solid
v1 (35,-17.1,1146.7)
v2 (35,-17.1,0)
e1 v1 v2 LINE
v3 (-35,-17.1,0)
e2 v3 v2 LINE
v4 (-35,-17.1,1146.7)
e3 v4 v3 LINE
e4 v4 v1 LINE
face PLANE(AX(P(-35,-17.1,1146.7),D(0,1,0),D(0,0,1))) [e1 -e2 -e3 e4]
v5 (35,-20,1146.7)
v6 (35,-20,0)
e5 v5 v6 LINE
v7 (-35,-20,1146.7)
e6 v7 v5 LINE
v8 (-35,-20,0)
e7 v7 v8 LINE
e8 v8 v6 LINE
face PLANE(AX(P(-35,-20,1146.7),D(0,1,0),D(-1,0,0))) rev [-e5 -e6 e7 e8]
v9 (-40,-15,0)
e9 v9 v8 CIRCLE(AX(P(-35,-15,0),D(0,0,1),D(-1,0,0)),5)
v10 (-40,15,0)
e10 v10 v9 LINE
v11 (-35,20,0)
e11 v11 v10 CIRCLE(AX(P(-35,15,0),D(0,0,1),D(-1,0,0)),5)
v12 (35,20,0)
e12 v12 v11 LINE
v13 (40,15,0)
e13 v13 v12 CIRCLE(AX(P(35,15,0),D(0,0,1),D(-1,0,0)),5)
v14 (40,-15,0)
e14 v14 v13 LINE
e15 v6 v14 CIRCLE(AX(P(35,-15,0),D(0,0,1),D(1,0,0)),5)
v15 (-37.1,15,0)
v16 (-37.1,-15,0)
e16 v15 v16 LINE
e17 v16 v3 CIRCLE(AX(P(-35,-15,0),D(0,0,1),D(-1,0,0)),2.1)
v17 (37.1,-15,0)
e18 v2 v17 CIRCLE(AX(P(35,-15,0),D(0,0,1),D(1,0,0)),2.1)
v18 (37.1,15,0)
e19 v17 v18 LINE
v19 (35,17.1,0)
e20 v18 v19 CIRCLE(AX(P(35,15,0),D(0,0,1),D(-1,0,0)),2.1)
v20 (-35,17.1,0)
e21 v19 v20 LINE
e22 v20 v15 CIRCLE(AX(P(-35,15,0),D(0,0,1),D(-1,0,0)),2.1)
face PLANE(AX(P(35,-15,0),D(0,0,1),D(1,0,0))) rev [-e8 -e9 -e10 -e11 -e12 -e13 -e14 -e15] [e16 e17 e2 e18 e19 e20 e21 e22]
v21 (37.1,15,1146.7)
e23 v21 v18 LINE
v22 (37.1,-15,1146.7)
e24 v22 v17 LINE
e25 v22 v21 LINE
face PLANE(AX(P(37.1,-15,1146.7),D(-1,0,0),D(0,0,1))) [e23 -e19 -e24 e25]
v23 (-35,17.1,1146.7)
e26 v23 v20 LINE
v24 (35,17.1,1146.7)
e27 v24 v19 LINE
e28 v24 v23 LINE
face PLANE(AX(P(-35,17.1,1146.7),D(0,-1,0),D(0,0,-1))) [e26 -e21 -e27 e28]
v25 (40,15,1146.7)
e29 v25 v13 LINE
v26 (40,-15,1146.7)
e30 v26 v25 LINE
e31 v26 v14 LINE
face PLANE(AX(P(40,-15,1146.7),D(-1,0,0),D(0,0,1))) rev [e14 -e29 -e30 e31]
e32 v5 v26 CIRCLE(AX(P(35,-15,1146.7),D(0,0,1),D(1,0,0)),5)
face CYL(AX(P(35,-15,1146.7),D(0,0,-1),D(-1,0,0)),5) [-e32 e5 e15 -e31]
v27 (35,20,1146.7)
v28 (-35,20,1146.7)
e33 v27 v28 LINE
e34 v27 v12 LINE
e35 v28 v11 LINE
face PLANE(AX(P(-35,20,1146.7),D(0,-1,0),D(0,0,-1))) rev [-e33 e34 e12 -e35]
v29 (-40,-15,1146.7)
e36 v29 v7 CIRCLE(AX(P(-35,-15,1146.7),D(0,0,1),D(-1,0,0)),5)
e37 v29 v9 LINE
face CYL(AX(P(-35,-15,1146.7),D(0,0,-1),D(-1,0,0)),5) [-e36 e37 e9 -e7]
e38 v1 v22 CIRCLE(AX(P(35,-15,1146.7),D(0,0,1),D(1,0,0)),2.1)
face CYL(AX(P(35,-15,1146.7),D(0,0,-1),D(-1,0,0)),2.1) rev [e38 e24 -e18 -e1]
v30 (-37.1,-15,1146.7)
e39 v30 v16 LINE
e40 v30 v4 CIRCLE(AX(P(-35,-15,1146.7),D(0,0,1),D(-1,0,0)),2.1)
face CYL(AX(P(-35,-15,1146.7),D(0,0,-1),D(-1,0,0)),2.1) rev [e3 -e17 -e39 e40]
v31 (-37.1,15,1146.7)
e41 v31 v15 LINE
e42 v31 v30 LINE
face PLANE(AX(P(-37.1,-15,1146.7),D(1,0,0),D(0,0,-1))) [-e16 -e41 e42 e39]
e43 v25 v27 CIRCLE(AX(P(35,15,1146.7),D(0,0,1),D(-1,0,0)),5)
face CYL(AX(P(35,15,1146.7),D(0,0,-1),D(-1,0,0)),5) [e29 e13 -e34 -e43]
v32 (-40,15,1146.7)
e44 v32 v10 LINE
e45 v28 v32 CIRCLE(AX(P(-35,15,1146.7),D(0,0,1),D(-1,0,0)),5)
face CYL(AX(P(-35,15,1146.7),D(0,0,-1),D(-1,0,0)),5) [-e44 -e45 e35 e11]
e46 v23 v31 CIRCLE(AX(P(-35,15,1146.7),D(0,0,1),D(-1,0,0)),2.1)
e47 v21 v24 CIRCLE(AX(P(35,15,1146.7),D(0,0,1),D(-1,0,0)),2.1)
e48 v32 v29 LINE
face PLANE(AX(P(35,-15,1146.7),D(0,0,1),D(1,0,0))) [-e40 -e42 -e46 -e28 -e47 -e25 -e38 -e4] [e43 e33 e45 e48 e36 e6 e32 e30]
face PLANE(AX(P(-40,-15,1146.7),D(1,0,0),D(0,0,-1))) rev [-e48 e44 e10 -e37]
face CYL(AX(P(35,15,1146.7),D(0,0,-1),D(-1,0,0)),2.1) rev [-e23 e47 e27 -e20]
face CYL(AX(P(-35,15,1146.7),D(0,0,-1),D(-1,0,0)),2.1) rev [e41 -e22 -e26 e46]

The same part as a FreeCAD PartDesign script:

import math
import FreeCAD as App
import Part
import Sketcher

V = App.Vector
Q = App.Units.Quantity

doc = App.newDocument("Part")
body = doc.addObject("PartDesign::Body", "Body")

# Sketch on XY plane
sketch1 = body.newObject("Sketcher::SketchObject", "Sketch")
sketch1.AttachmentSupport = (doc.getObject("XY_Plane"), [""])
sketch1.MapMode = "FlatFace"
sketch1.addGeometry(Part.LineSegment(V(-35, -20, 0), V(35, -20, 0)), False)
sketch1.addGeometry(Part.ArcOfCircle(Part.Circle(V(35, -15, 0), V(0, 0, 1), 5), math.radians(-90), math.radians(0)), False)
sketch1.addGeometry(Part.LineSegment(V(40, -15, 0), V(40, 15, 0)), False)
sketch1.addGeometry(Part.ArcOfCircle(Part.Circle(V(35, 15, 0), V(0, 0, 1), 5), math.radians(0), math.radians(90)), False)
sketch1.addGeometry(Part.LineSegment(V(35, 20, 0), V(-35, 20, 0)), False)
sketch1.addGeometry(Part.ArcOfCircle(Part.Circle(V(-35, 15, 0), V(0, 0, 1), 5), math.radians(90), math.radians(180)), False)
sketch1.addGeometry(Part.LineSegment(V(-40, 15, 0), V(-40, -15, 0)), False)
sketch1.addGeometry(Part.ArcOfCircle(Part.Circle(V(-35, -15, 0), V(0, 0, 1), 5), math.radians(180), math.radians(270)), False)
sketch1.addGeometry(Part.ArcOfCircle(Part.Circle(V(-35, -15, 0), V(0, 0, 1), 2.1), math.radians(-180), math.radians(-90)), False)
sketch1.addGeometry(Part.LineSegment(V(-37.1, -15, 0), V(-37.1, 15, 0)), False)
sketch1.addGeometry(Part.ArcOfCircle(Part.Circle(V(-35, 15, 0), V(0, 0, 1), 2.1), math.radians(90), math.radians(180)), False)
sketch1.addGeometry(Part.LineSegment(V(-35, 17.1, 0), V(35, 17.1, 0)), False)
sketch1.addGeometry(Part.ArcOfCircle(Part.Circle(V(35, 15, 0), V(0, 0, 1), 2.1), math.radians(0), math.radians(90)), False)
sketch1.addGeometry(Part.LineSegment(V(37.1, 15, 0), V(37.1, -15, 0)), False)
sketch1.addGeometry(Part.ArcOfCircle(Part.Circle(V(35, -15, 0), V(0, 0, 1), 2.1), math.radians(-90), math.radians(0)), False)
sketch1.addGeometry(Part.LineSegment(V(35, -17.1, 0), V(-35, -17.1, 0)), False)
sketch1.addConstraint(Sketcher.Constraint("Tangent", 0, 2, 1, 1))
sketch1.addConstraint(Sketcher.Constraint("Tangent", 1, 2, 2, 1))
sketch1.addConstraint(Sketcher.Constraint("Tangent", 2, 2, 3, 1))
sketch1.addConstraint(Sketcher.Constraint("Tangent", 3, 2, 4, 1))
sketch1.addConstraint(Sketcher.Constraint("Tangent", 4, 2, 5, 1))
sketch1.addConstraint(Sketcher.Constraint("Tangent", 5, 2, 6, 1))
sketch1.addConstraint(Sketcher.Constraint("Tangent", 6, 2, 7, 1))
sketch1.addConstraint(Sketcher.Constraint("Tangent", 7, 2, 0, 1))
sketch1.addConstraint(Sketcher.Constraint("Tangent", 8, 1, 9, 1))
sketch1.addConstraint(Sketcher.Constraint("Tangent", 9, 2, 10, 2))
sketch1.addConstraint(Sketcher.Constraint("Tangent", 10, 1, 11, 1))
sketch1.addConstraint(Sketcher.Constraint("Tangent", 11, 2, 12, 2))
sketch1.addConstraint(Sketcher.Constraint("Tangent", 12, 1, 13, 1))
sketch1.addConstraint(Sketcher.Constraint("Tangent", 13, 2, 14, 2))
sketch1.addConstraint(Sketcher.Constraint("Tangent", 14, 1, 15, 1))
sketch1.addConstraint(Sketcher.Constraint("Tangent", 15, 2, 8, 2))
sketch1.addConstraint(Sketcher.Constraint("Horizontal", 0))
sketch1.addConstraint(Sketcher.Constraint("Vertical", 2))
sketch1.addConstraint(Sketcher.Constraint("Horizontal", 4))
sketch1.addConstraint(Sketcher.Constraint("Vertical", 6))
sketch1.addConstraint(Sketcher.Constraint("Vertical", 9))
sketch1.addConstraint(Sketcher.Constraint("Horizontal", 11))
sketch1.addConstraint(Sketcher.Constraint("Vertical", 13))
sketch1.addConstraint(Sketcher.Constraint("Horizontal", 15))
sketch1.addConstraint(Sketcher.Constraint("Coincident", 8, 3, 7, 3))
sketch1.addConstraint(Sketcher.Constraint("Coincident", 10, 3, 5, 3))
sketch1.addConstraint(Sketcher.Constraint("Coincident", 12, 3, 3, 3))
sketch1.addConstraint(Sketcher.Constraint("Equal", 1, 3))
sketch1.addConstraint(Sketcher.Constraint("Equal", 3, 5))
sketch1.addConstraint(Sketcher.Constraint("Equal", 5, 7))
sketch1.addConstraint(Sketcher.Constraint("Equal", 12, 14))
sketch1.addConstraint(Sketcher.Constraint("Symmetric", 1, 3, 5, 3, -1, 1))
sketch1.addConstraint(Sketcher.Constraint("Radius", 1, Q("5 mm")))
sketch1.addConstraint(Sketcher.Constraint("Radius", 8, Q("2.1 mm")))
sketch1.addConstraint(Sketcher.Constraint("DistanceX", 0, 1, 0, 2, Q("70 mm")))
sketch1.addConstraint(Sketcher.Constraint("DistanceY", 2, 1, 2, 2, Q("30 mm")))
pad1 = body.newObject("PartDesign::Pad", "Pad")
pad1.Profile = sketch1
pad1.Length = 1146.7

doc.recompute()
